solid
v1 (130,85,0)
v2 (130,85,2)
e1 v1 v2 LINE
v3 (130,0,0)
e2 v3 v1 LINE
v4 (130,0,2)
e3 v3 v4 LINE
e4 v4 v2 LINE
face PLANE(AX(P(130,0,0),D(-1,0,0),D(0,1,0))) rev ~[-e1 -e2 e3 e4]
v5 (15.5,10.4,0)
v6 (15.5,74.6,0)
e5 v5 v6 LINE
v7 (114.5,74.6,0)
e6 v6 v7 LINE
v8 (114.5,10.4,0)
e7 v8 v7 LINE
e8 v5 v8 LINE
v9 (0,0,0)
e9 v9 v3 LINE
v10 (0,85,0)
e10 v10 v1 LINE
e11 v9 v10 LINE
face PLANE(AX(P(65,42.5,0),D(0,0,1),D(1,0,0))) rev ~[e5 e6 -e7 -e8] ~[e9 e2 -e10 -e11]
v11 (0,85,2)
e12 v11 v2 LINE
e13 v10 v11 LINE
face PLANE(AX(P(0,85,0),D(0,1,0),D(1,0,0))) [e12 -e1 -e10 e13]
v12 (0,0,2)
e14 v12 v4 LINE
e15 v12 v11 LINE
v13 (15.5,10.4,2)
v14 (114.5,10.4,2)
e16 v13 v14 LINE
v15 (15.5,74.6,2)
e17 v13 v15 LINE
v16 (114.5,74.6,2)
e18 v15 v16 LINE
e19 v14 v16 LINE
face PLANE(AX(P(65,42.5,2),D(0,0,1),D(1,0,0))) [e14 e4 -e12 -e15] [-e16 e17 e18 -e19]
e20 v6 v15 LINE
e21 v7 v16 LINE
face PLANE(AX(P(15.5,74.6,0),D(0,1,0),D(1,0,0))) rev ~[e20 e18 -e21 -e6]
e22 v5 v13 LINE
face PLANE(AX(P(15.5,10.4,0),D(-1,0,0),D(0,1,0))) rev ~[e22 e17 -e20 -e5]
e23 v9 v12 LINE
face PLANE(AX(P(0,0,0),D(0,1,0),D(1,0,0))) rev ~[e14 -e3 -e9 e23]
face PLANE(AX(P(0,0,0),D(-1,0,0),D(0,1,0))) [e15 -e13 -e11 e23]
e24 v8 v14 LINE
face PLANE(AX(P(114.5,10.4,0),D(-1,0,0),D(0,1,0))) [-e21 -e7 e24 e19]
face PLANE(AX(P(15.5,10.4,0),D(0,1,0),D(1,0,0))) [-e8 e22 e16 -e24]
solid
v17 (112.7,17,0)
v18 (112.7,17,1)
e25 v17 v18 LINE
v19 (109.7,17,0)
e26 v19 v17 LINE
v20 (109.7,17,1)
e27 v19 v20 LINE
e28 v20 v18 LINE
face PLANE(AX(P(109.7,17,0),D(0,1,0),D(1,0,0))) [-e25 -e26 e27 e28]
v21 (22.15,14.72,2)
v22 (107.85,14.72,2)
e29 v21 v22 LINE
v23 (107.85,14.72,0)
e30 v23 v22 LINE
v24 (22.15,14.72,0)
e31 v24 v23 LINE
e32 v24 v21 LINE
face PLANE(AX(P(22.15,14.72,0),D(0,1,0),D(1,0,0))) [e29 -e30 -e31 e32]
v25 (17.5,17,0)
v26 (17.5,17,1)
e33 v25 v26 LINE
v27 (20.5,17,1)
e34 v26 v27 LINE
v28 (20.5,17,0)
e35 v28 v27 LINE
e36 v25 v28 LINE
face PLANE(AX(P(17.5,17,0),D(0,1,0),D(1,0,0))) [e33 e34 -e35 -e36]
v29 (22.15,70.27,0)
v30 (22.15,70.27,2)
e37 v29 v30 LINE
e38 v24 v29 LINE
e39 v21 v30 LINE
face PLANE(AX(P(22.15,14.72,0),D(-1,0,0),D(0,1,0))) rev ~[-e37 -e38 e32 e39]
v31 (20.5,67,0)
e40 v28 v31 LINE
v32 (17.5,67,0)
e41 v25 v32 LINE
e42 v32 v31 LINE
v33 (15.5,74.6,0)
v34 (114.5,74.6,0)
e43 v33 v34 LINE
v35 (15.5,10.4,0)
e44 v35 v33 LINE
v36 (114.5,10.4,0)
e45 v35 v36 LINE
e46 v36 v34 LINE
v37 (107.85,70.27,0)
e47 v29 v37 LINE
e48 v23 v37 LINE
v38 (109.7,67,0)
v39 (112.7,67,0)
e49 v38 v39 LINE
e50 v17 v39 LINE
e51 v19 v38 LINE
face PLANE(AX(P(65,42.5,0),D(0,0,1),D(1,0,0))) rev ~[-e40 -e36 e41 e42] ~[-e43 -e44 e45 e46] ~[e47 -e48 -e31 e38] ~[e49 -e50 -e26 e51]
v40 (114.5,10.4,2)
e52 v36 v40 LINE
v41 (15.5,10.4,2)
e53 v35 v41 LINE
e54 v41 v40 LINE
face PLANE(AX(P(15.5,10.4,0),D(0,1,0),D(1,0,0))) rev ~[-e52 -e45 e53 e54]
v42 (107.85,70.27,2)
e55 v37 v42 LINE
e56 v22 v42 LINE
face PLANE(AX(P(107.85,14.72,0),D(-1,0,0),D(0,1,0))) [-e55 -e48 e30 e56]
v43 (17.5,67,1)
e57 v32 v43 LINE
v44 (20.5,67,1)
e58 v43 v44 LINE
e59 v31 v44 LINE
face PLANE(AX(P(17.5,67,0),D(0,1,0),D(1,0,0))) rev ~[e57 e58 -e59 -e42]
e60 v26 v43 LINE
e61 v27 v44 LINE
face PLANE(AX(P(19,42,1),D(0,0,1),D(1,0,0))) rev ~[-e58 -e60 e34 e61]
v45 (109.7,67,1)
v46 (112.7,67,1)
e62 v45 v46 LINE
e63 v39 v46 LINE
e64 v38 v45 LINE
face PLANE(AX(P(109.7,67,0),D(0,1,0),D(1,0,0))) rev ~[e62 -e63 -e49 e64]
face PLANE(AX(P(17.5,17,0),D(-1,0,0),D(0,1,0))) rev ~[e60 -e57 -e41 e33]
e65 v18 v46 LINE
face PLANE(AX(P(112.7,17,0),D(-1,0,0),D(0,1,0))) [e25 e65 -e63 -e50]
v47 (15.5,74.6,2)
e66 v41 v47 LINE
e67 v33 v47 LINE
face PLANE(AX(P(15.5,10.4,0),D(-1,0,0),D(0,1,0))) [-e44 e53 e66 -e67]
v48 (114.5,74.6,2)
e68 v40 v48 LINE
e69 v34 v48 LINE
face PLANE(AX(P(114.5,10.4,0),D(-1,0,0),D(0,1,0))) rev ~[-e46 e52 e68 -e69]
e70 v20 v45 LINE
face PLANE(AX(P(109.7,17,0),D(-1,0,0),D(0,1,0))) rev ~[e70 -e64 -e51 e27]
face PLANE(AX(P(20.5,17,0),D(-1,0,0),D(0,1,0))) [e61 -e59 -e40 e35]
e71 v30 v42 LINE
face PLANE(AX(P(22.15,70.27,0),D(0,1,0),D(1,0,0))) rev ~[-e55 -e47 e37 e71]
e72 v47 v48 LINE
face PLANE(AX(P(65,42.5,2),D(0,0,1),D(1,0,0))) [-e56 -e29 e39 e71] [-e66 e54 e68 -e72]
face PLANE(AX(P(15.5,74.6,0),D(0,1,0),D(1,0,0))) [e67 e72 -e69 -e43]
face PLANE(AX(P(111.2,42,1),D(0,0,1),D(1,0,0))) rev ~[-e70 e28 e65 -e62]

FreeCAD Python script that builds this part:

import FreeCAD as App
import Part
import Sketcher
Q = App.Units.Quantity


def add_polygon(sketch, points):
    """Adds a closed chain of lines whose ends are joined by coincident constraints."""
    first, n = sketch.GeometryCount, len(points)
    for a, b in zip(points, points[1:] + points[:1]):
        sketch.addGeometry(Part.LineSegment(App.Vector(*a, 0), App.Vector(*b, 0)), False)
    for i in range(n):
        sketch.addConstraint(Sketcher.Constraint("Coincident", first + i, 2, first + (i + 1) % n, 1))

doc = App.newDocument("Part")
params = doc.addObject("Spreadsheet::Sheet", "Params")
for row, (alias, value) in enumerate([
    ("sketch1_width", "99 mm"),
    ("sketch1_height", "64.2 mm"),
    ("pad1_length", "2 mm"),
    ("sketch2_width", "130 mm"),
    ("sketch2_height", "85 mm"),
    ("pad2_length", "2 mm"),
    ("sketch3_width", "3 mm"),
    ("sketch3_height", "50 mm"),
    ("pad3_length", "1 mm"),
    ("sketch4_width", "3 mm"),
    ("sketch4_height", "50 mm"),
    ("pad4_length", "1 mm"),
    ("sketch5_width", "85.7 mm"),
    ("sketch5_height", "55.55 mm"),
    ("pad5_length", "2 mm"),
    ("sketch6_width", "99 mm"),
    ("sketch6_height", "64.2 mm"),
    ("pad6_length", "2 mm"),
], start=1):
    params.set(f"A{row}", alias)
    params.set(f"B{row}", "=" + value)
    params.setAlias(f"B{row}", alias)

body = doc.addObject("PartDesign::Body", "Body")

sketch1 = doc.addObject("Sketcher::SketchObject", "Sketch")
body.addObject(sketch1)
sketch1.AttachmentSupport = (doc.XY_Plane, [""])
sketch1.MapMode = "FlatFace"
add_polygon(sketch1, [(16, 75), (16, 10), (114, 10), (114, 75)])
sketch1.addConstraint([
    Sketcher.Constraint("Vertical", 0),
    Sketcher.Constraint("Horizontal", 1),
    Sketcher.Constraint("Vertical", 2),
    Sketcher.Constraint("Horizontal", 3),
    Sketcher.Constraint("DistanceX", 1, 1, 1, 2, Q("99 mm")),
    Sketcher.Constraint("DistanceY", 0, 2, 0, 1, Q("64.2 mm")),
    Sketcher.Constraint("DistanceX", -1, 1, 0, 2, Q("15.5 mm")),
    Sketcher.Constraint("DistanceY", -1, 1, 0, 2, Q("10.4 mm")),
])
sketch1.setExpression("Constraints[8]", "Params.sketch1_width")
sketch1.setExpression("Constraints[9]", "Params.sketch1_height")
pad1 = doc.addObject("PartDesign::Pad", "Pad")
body.addObject(pad1)
pad1.Profile = sketch1
pad1.setExpression("Length", "Params.pad1_length")
body2 = doc.addObject("PartDesign::Body", "Body001")

sketch2 = doc.addObject("Sketcher::SketchObject", "Sketch001")
body2.addObject(sketch2)
sketch2.AttachmentSupport = (doc.getObject("XY_Plane001"), [""])
sketch2.MapMode = "FlatFace"
add_polygon(sketch2, [(0, 85), (0, 0), (130, 0), (130, 85)])
sketch2.addConstraint([
    Sketcher.Constraint("Vertical", 0),
    Sketcher.Constraint("Horizontal", 1),
    Sketcher.Constraint("Vertical", 2),
    Sketcher.Constraint("Horizontal", 3),
    Sketcher.Constraint("Coincident", 0, 2, -1, 1),
    Sketcher.Constraint("DistanceX", 1, 1, 1, 2, Q("130 mm")),
    Sketcher.Constraint("DistanceY", 0, 2, 0, 1, Q("85 mm")),
])
sketch2.setExpression("Constraints[9]", "Params.sketch2_width")
sketch2.setExpression("Constraints[10]", "Params.sketch2_height")
pad2 = doc.addObject("PartDesign::Pad", "Pad001")
body2.addObject(pad2)
pad2.Profile = sketch2
pad2.setExpression("Length", "Params.pad2_length")
doc.recompute()

boolean = doc.addObject("PartDesign::Boolean", "Boolean")
body2.addObject(boolean)
boolean.Type = "Cut"
boolean.addObjects([body])
body3 = doc.addObject("PartDesign::Body", "Body002")

sketch3 = doc.addObject("Sketcher::SketchObject", "Sketch002")
body3.addObject(sketch3)
sketch3.AttachmentSupport = (doc.getObject("XY_Plane002"), [""])
sketch3.MapMode = "FlatFace"
add_polygon(sketch3, [(109.7, 67), (109.7, 17), (112.7, 17), (112.7, 67)])
sketch3.addConstraint([
    Sketcher.Constraint("Vertical", 0),
    Sketcher.Constraint("Horizontal", 1),
    Sketcher.Constraint("Vertical", 2),
    Sketcher.Constraint("Horizontal", 3),
    Sketcher.Constraint("DistanceX", 1, 1, 1, 2, Q("3 mm")),
    Sketcher.Constraint("DistanceY", 0, 2, 0, 1, Q("50 mm")),
    Sketcher.Constraint("DistanceY", -1, 1, 0, 2, Q("17 mm")),
    Sketcher.Constraint("DistanceX", -1, 1, 0, 2, Q("109.7 mm")),
])
sketch3.setExpression("Constraints[8]", "Params.sketch3_width")
sketch3.setExpression("Constraints[9]", "Params.sketch3_height")
pad3 = doc.addObject("PartDesign::Pad", "Pad002")
body3.addObject(pad3)
pad3.Profile = sketch3
pad3.setExpression("Length", "Params.pad3_length")
body4 = doc.addObject("PartDesign::Body", "Body003")

sketch4 = doc.addObject("Sketcher::SketchObject", "Sketch003")
body4.addObject(sketch4)
sketch4.AttachmentSupport = (doc.getObject("XY_Plane003"), [""])
sketch4.MapMode = "FlatFace"
add_polygon(sketch4, [(17.5, 67), (17.5, 17), (20.5, 17), (20.5, 67)])
sketch4.addConstraint([
    Sketcher.Constraint("Vertical", 0),
    Sketcher.Constraint("Horizontal", 1),
    Sketcher.Constraint("Vertical", 2),
    Sketcher.Constraint("Horizontal", 3),
    Sketcher.Constraint("DistanceX", 1, 1, 1, 2, Q("3 mm")),
    Sketcher.Constraint("DistanceY", 0, 2, 0, 1, Q("50 mm")),
    Sketcher.Constraint("DistanceY", -1, 1, 0, 2, Q("17 mm")),
    Sketcher.Constraint("DistanceX", -1, 1, 0, 2, Q("17.5 mm")),
])
sketch4.setExpression("Constraints[8]", "Params.sketch4_width")
sketch4.setExpression("Constraints[9]", "Params.sketch4_height")
pad4 = doc.addObject("PartDesign::Pad", "Pad003")
body4.addObject(pad4)
pad4.Profile = sketch4
pad4.setExpression("Length", "Params.pad4_length")
body5 = doc.addObject("PartDesign::Body", "Body004")

sketch5 = doc.addObject("Sketcher::SketchObject", "Sketch004")
body5.addObject(sketch5)
sketch5.AttachmentSupport = (doc.getObject("XY_Plane004"), [""])
sketch5.MapMode = "FlatFace"
add_polygon(sketch5, [(22, 70), (22, 15), (108, 15), (108, 70)])
sketch5.addConstraint([
    Sketcher.Constraint("Vertical", 0),
    Sketcher.Constraint("Horizontal", 1),
    Sketcher.Constraint("Vertical", 2),
    Sketcher.Constraint("Horizontal", 3),
    Sketcher.Constraint("DistanceX", 1, 1, 1, 2, Q("85.7 mm")),
    Sketcher.Constraint("DistanceY", 0, 2, 0, 1, Q("55.55 mm")),
    Sketcher.Constraint("DistanceX", -1, 1, 0, 2, Q("22.15 mm")),
    Sketcher.Constraint("DistanceY", -1, 1, 0, 2, Q("14.72 mm")),
])
sketch5.setExpression("Constraints[8]", "Params.sketch5_width")
sketch5.setExpression("Constraints[9]", "Params.sketch5_height")
pad5 = doc.addObject("PartDesign::Pad", "Pad004")
body5.addObject(pad5)
pad5.Profile = sketch5
pad5.setExpression("Length", "Params.pad5_length")
body6 = doc.addObject("PartDesign::Body", "Body005")

sketch6 = doc.addObject("Sketcher::SketchObject", "Sketch005")
body6.addObject(sketch6)
sketch6.AttachmentSupport = (doc.getObject("XY_Plane005"), [""])
sketch6.MapMode = "FlatFace"
add_polygon(sketch6, [(16, 75), (16, 10), (114, 10), (114, 75)])
sketch6.addConstraint([
    Sketcher.Constraint("Vertical", 0),
    Sketcher.Constraint("Horizontal", 1),
    Sketcher.Constraint("Vertical", 2),
    Sketcher.Constraint("Horizontal", 3),
    Sketcher.Constraint("DistanceX", 1, 1, 1, 2, Q("99 mm")),
    Sketcher.Constraint("DistanceY", 0, 2, 0, 1, Q("64.2 mm")),
    Sketcher.Constraint("DistanceX", -1, 1, 0, 2, Q("15.5 mm")),
    Sketcher.Constraint("DistanceY", -1, 1, 0, 2, Q("10.4 mm")),
])
sketch6.setExpression("Constraints[8]", "Params.sketch6_width")
sketch6.setExpression("Constraints[9]", "Params.sketch6_height")
pad6 = doc.addObject("PartDesign::Pad", "Pad005")
body6.addObject(pad6)
pad6.Profile = sketch6
pad6.setExpression("Length", "Params.pad6_length")
doc.recompute()

boolean2 = doc.addObject("PartDesign::Boolean", "Boolean001")
body6.addObject(boolean2)
boolean2.Type = "Cut"
boolean2.addObjects([body5])
doc.recompute()

boolean3 = doc.addObject("PartDesign::Boolean", "Boolean002")
body6.addObject(boolean3)
boolean3.Type = "Cut"
boolean3.addObjects([body4])
doc.recompute()

boolean4 = doc.addObject("PartDesign::Boolean", "Boolean003")
body6.addObject(boolean4)
boolean4.Type = "Cut"
boolean4.addObjects([body3])

doc.recompute()
